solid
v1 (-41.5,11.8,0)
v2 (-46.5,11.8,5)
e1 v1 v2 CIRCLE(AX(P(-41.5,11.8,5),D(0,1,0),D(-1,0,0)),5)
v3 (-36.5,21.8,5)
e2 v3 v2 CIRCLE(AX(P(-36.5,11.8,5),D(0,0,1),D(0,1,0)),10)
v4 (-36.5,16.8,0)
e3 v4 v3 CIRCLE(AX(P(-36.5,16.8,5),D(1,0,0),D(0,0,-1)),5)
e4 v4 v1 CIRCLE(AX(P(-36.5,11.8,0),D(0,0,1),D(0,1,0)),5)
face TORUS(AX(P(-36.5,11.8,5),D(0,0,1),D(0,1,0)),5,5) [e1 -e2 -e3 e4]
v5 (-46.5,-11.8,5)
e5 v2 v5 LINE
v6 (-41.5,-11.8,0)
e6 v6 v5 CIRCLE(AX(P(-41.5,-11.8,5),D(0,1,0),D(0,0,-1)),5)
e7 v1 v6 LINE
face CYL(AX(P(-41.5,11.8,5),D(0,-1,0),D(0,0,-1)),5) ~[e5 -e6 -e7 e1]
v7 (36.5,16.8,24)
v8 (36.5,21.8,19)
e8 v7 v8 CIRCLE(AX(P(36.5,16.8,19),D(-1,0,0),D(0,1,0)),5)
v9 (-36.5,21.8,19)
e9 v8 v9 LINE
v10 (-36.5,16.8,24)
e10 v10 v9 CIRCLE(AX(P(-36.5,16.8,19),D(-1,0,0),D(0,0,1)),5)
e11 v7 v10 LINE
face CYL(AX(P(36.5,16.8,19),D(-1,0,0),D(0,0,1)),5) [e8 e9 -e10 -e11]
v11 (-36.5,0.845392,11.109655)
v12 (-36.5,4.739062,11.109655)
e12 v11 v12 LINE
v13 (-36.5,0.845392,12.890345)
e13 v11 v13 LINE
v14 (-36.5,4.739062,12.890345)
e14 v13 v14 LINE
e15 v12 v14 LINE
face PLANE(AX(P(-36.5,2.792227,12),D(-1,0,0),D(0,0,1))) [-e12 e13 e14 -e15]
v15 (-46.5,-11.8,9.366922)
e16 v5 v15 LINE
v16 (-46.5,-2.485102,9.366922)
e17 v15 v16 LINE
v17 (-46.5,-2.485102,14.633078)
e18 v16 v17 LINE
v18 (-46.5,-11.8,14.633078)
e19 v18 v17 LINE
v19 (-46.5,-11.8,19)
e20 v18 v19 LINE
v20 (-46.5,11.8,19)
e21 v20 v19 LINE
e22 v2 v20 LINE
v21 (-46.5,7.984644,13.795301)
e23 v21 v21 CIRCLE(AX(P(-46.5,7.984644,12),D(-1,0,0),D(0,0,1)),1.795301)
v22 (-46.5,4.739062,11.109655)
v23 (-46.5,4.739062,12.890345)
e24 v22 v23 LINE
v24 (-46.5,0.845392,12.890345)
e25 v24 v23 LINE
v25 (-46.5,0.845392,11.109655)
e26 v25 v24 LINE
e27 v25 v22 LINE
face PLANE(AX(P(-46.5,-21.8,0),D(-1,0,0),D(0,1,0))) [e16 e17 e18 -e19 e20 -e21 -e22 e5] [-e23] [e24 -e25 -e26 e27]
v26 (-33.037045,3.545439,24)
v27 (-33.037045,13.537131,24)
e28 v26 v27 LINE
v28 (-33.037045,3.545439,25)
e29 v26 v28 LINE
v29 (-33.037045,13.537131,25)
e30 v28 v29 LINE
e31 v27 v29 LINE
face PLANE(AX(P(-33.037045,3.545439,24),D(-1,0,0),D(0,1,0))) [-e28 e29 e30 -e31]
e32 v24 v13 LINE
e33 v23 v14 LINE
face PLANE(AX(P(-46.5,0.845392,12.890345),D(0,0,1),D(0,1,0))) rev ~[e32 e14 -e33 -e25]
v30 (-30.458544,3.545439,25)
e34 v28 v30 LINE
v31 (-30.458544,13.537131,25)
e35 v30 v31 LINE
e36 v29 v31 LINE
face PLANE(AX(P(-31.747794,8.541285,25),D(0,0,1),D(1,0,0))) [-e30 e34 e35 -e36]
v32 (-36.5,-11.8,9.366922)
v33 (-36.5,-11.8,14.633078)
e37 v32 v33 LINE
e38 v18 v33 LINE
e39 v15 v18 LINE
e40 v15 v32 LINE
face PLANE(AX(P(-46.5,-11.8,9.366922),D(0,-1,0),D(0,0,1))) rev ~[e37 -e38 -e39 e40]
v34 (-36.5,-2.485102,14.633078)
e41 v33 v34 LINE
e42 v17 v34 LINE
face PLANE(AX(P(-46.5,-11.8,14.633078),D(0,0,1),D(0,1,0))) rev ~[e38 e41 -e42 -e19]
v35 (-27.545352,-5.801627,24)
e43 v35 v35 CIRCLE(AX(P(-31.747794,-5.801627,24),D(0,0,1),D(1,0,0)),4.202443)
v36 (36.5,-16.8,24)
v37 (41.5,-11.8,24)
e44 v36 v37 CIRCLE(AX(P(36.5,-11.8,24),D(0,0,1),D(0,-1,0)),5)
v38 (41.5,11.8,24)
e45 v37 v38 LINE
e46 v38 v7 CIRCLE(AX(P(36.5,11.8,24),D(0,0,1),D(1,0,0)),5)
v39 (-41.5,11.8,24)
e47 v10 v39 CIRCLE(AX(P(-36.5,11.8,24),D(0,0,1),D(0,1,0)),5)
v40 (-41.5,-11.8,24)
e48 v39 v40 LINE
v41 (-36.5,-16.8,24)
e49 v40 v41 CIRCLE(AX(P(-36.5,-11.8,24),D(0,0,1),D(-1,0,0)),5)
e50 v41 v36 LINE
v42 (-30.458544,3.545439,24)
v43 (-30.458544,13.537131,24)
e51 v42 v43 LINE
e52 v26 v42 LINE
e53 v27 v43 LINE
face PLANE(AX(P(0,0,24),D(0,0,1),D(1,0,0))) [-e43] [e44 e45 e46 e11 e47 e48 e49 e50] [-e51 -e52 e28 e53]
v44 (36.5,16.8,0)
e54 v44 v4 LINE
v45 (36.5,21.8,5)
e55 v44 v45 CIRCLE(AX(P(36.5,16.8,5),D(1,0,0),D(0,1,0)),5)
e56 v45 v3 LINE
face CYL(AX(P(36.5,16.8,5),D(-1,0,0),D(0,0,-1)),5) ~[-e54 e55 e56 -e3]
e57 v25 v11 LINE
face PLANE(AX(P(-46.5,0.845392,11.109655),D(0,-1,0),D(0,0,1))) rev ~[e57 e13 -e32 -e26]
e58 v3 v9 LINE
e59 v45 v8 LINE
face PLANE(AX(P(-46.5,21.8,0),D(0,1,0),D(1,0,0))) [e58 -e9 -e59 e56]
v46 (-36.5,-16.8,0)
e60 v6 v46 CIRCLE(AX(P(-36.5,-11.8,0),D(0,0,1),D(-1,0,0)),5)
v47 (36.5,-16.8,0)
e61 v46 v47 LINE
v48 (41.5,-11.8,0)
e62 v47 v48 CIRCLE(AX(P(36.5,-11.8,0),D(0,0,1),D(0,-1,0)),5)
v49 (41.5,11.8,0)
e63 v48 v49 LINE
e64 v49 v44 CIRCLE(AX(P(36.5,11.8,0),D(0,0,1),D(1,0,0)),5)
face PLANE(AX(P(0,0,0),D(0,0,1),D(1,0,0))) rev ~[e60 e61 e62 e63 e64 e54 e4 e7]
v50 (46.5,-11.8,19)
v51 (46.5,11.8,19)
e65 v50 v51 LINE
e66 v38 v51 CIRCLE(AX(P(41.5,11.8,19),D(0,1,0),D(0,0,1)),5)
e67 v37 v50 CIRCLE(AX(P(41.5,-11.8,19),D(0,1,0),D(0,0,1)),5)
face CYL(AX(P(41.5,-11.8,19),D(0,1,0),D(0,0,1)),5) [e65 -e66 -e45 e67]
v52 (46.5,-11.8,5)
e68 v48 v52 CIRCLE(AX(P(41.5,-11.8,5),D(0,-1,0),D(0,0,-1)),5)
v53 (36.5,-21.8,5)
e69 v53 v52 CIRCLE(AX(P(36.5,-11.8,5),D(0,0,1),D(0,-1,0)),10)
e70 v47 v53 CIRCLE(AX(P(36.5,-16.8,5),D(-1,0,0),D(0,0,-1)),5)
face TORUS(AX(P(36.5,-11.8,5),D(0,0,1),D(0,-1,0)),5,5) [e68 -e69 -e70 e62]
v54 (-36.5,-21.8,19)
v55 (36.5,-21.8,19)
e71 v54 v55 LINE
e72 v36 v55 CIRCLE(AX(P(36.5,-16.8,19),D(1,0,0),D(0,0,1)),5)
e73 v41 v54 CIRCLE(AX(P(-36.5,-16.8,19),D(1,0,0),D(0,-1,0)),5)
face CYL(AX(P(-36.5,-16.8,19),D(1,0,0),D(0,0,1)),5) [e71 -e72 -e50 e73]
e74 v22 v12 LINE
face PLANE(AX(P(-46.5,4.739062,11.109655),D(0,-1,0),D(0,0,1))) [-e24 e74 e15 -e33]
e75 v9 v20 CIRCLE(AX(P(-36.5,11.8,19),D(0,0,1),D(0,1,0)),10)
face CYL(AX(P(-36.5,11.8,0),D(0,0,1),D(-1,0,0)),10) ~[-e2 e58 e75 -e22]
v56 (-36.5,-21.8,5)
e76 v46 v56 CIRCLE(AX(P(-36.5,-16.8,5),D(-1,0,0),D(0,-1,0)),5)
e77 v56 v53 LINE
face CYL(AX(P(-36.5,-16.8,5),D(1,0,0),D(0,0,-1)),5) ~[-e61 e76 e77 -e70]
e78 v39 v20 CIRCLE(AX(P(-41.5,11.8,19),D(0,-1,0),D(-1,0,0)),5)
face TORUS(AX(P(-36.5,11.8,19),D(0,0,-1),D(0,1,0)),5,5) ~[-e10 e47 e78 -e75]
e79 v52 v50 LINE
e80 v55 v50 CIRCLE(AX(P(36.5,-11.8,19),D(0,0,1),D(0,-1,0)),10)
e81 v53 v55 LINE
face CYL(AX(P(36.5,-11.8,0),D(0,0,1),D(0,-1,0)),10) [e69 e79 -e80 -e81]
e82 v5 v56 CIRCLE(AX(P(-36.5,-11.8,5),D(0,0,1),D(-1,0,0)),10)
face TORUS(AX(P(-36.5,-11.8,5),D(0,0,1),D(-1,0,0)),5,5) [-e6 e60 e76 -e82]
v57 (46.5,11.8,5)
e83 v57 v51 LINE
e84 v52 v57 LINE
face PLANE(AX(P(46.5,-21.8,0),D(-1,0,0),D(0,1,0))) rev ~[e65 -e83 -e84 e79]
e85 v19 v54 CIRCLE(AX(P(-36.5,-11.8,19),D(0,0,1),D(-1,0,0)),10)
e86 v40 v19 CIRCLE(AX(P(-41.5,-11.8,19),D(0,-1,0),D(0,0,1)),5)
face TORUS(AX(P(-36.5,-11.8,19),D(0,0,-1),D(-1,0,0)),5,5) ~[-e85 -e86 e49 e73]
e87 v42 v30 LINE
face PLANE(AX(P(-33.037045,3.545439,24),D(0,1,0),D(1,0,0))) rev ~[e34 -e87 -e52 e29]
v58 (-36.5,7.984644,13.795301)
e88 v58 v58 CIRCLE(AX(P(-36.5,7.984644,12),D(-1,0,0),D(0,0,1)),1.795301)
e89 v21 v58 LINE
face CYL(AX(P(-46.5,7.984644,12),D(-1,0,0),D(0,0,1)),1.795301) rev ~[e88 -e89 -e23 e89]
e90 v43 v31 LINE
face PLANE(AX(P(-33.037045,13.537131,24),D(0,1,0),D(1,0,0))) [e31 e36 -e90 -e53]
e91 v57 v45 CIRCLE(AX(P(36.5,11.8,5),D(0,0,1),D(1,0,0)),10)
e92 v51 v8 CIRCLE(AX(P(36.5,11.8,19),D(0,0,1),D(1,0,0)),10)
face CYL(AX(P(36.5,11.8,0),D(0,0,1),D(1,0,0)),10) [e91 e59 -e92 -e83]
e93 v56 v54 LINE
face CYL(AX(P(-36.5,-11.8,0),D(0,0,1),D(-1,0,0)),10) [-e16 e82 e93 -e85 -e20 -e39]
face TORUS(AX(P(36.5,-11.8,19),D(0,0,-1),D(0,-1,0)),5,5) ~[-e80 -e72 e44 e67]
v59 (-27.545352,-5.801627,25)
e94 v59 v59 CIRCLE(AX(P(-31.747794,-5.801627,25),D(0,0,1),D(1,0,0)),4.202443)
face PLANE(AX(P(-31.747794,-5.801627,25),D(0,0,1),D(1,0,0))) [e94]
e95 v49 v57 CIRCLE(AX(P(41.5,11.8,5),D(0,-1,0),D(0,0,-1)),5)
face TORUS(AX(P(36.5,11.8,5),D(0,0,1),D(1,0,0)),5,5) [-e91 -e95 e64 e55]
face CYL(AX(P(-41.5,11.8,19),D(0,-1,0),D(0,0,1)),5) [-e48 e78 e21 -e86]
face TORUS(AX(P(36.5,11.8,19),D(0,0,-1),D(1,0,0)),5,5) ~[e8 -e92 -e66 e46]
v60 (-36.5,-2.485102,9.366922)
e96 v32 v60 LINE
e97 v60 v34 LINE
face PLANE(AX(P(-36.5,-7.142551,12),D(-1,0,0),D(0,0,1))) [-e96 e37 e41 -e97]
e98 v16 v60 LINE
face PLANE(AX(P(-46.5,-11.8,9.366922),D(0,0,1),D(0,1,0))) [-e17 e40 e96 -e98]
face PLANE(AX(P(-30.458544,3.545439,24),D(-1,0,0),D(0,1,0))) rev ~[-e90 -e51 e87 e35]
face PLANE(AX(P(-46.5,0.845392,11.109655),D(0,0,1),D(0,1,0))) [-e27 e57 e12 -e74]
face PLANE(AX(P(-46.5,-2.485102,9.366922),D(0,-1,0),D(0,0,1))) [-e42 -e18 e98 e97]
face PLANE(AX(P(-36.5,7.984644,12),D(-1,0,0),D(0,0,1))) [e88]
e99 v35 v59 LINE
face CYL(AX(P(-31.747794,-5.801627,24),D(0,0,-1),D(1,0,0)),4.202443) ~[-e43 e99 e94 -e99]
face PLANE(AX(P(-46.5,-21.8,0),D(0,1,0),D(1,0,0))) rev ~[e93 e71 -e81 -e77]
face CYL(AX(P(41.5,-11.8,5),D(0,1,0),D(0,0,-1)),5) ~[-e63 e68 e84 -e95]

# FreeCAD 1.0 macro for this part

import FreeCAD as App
import Part
import Sketcher

V = App.Vector


def edges_at(feature, points):
    """Names of the edges that pass closest to the given points."""
    edges = feature.Shape.Edges
    near = lambda p: min(range(len(edges)), key=lambda i: edges[i].distToShape(Part.Vertex(*p))[0])
    return sorted({f"Edge{near(p) + 1}" for p in points})

doc = App.newDocument("Part")
params = doc.addObject("Spreadsheet::Sheet", "Params")
for row, (alias, value) in enumerate([
    ("sketch1_width", "93 mm"),
    ("sketch1_height", "43.6 mm"),
    ("pad1_length", "24 mm"),
    ("fillet_radius", "10 mm"),
    ("fillet2_radius", "5 mm"),
    ("pocket1_length", "10 mm"),
    ("pad2_length", "1 mm"),
], start=1):
    params.set(f"A{row}", alias)
    params.set(f"B{row}", "=" + value)
    params.setAlias(f"B{row}", alias)

body = doc.addObject("PartDesign::Body", "Body")

sketch1 = body.newObject("Sketcher::SketchObject", "Sketch")
sketch1.AttachmentSupport = (doc.getObject("XY_Plane"), [""])
sketch1.MapMode = "FlatFace"
sketch1.addGeometry(Part.LineSegment(V(-46, 22, 0), V(-46, -22, 0)), False)
sketch1.addGeometry(Part.LineSegment(V(-46, -22, 0), V(46, -22, 0)), False)
sketch1.addGeometry(Part.LineSegment(V(46, -22, 0), V(46, 22, 0)), False)
sketch1.addGeometry(Part.LineSegment(V(46, 22, 0), V(-46, 22, 0)), False)
sketch1.addConstraint(Sketcher.Constraint("Coincident", 0, 2, 1, 1))
sketch1.addConstraint(Sketcher.Constraint("Coincident", 1, 2, 2, 1))
sketch1.addConstraint(Sketcher.Constraint("Coincident", 2, 2, 3, 1))
sketch1.addConstraint(Sketcher.Constraint("Coincident", 3, 2, 0, 1))
sketch1.addConstraint(Sketcher.Constraint("Vertical", 0))
sketch1.addConstraint(Sketcher.Constraint("Horizontal", 1))
sketch1.addConstraint(Sketcher.Constraint("Vertical", 2))
sketch1.addConstraint(Sketcher.Constraint("Horizontal", 3))
sketch1.addConstraint(Sketcher.Constraint("Symmetric", 0, 2, 2, 2, -1, 1))
sketch1.addConstraint(Sketcher.Constraint("DistanceX", 1, 1, 1, 2, 93.0))
sketch1.addConstraint(Sketcher.Constraint("DistanceY", 0, 2, 0, 1, 43.6))
sketch1.setExpression("Constraints[9]", "Params.sketch1_width")
sketch1.setExpression("Constraints[10]", "Params.sketch1_height")
pad1 = body.newObject("PartDesign::Pad", "Pad")
pad1.Profile = sketch1
pad1.setExpression("Length", "Params.pad1_length")
doc.recompute()

fillet = body.newObject("PartDesign::Fillet", "Fillet")
fillet.Base = (pad1, edges_at(pad1, [
    (46.5, -21.8, 12),
    (-46.5, -21.8, 12),
    (-46.5, 21.8, 12),
    (46.5, 21.8, 12),
]))
fillet.setExpression("Radius", "Params.fillet_radius")
doc.recompute()

fillet2 = body.newObject("PartDesign::Fillet", "Fillet001")
fillet2.Base = (fillet, edges_at(fillet, [
    (46.5, 0, 0),
    (46.5, 0, 24),
    (0, -21.8, 0),
    (-46.5, 0, 0),
    (0, 21.8, 0),
    (-43.571, 18.871, 0),
    (-43.571, -18.871, 0),
    (43.571, 18.871, 0),
    (43.571, -18.871, 0),
    (0, -21.8, 24),
    (0, 21.8, 24),
    (-46.5, 0, 24),
    (-43.571, 18.871, 24),
    (-43.571, -18.871, 24),
    (43.571, 18.871, 24),
    (43.571, -18.871, 24),
]))
fillet2.setExpression("Radius", "Params.fillet2_radius")

sketch2 = body.newObject("Sketcher::SketchObject", "Sketch001")
sketch2.AttachmentSupport = (doc.getObject("YZ_Plane"), [""])
sketch2.MapMode = "FlatFace"
sketch2.AttachmentOffset = App.Placement(V(0, 0, -46.5), App.Rotation())
sketch2.addGeometry(Part.Circle(V(8, 12, 0), V(0, 0, 1), 1.8), False)
sketch2.addGeometry(Part.LineSegment(V(-2.5, 9.4, 0), V(-11.8, 9.4, 0)), False)
sketch2.addGeometry(Part.LineSegment(V(-11.8, 9.4, 0), V(-11.8, 14.6, 0)), False)
sketch2.addGeometry(Part.LineSegment(V(-11.8, 14.6, 0), V(-2.5, 14.6, 0)), False)
sketch2.addGeometry(Part.LineSegment(V(-2.5, 14.6, 0), V(-2.5, 9.4, 0)), False)
sketch2.addGeometry(Part.LineSegment(V(4.7, 11.1, 0), V(0.8, 11.1, 0)), False)
sketch2.addGeometry(Part.LineSegment(V(0.8, 11.1, 0), V(0.8, 12.9, 0)), False)
sketch2.addGeometry(Part.LineSegment(V(0.8, 12.9, 0), V(4.7, 12.9, 0)), False)
sketch2.addGeometry(Part.LineSegment(V(4.7, 12.9, 0), V(4.7, 11.1, 0)), False)
sketch2.addConstraint(Sketcher.Constraint("Coincident", 1, 2, 2, 1))
sketch2.addConstraint(Sketcher.Constraint("Coincident", 2, 2, 3, 1))
sketch2.addConstraint(Sketcher.Constraint("Coincident", 3, 2, 4, 1))
sketch2.addConstraint(Sketcher.Constraint("Coincident", 4, 2, 1, 1))
sketch2.addConstraint(Sketcher.Constraint("Coincident", 5, 2, 6, 1))
sketch2.addConstraint(Sketcher.Constraint("Coincident", 6, 2, 7, 1))
sketch2.addConstraint(Sketcher.Constraint("Coincident", 7, 2, 8, 1))
sketch2.addConstraint(Sketcher.Constraint("Coincident", 8, 2, 5, 1))
sketch2.addConstraint(Sketcher.Constraint("Horizontal", 1))
sketch2.addConstraint(Sketcher.Constraint("Vertical", 2))
sketch2.addConstraint(Sketcher.Constraint("Horizontal", 3))
sketch2.addConstraint(Sketcher.Constraint("Vertical", 4))
sketch2.addConstraint(Sketcher.Constraint("Horizontal", 5))
sketch2.addConstraint(Sketcher.Constraint("Vertical", 6))
sketch2.addConstraint(Sketcher.Constraint("Horizontal", 7))
sketch2.addConstraint(Sketcher.Constraint("Vertical", 8))
sketch2.addConstraint(Sketcher.Constraint("DistanceY", -1, 1, 0, 3, 12.0))
sketch2.addConstraint(Sketcher.Constraint("DistanceX", 1, 2, -1, 1, 11.8))
sketch2.addConstraint(Sketcher.Constraint("Diameter", 0, 3.590603))
sketch2.addConstraint(Sketcher.Constraint("DistanceX", 1, 2, 1, 1, 9.314898))
sketch2.addConstraint(Sketcher.Constraint("DistanceX", 5, 2, 5, 1, 3.89367))
sketch2.addConstraint(Sketcher.Constraint("DistanceY", 6, 1, 6, 2, 1.78069))
sketch2.addConstraint(Sketcher.Constraint("DistanceY", 2, 1, 2, 2, 5.266157))
sketch2.addConstraint(Sketcher.Constraint("DistanceY", -1, 1, 1, 2, 9.366922))
sketch2.addConstraint(Sketcher.Constraint("DistanceX", -1, 1, 7, 2, 4.739062))
sketch2.addConstraint(Sketcher.Constraint("DistanceX", 5, 2, 0, 3, 7.139251))
sketch2.addConstraint(Sketcher.Constraint("DistanceY", -1, 1, 5, 2, 11.109655))
pocket1 = body.newObject("PartDesign::Pocket", "Pocket")
pocket1.Profile = sketch2
pocket1.setExpression("Length", "Params.pocket1_length")
pocket1.Reversed = True

sketch3 = body.newObject("Sketcher::SketchObject", "Sketch002")
sketch3.AttachmentSupport = (doc.getObject("XY_Plane"), [""])
sketch3.MapMode = "FlatFace"
sketch3.AttachmentOffset = App.Placement(V(0, 0, 24), App.Rotation())
sketch3.addGeometry(Part.Circle(V(-31.7, -5.8, 0), V(0, 0, 1), 4.2), False)
sketch3.addGeometry(Part.LineSegment(V(-33, 13.5, 0), V(-33, 3.5, 0)), False)
sketch3.addGeometry(Part.LineSegment(V(-33, 3.5, 0), V(-30.5, 3.5, 0)), False)
sketch3.addGeometry(Part.LineSegment(V(-30.5, 3.5, 0), V(-30.5, 13.5, 0)), False)
sketch3.addGeometry(Part.LineSegment(V(-30.5, 13.5, 0), V(-33, 13.5, 0)), False)
sketch3.addConstraint(Sketcher.Constraint("Coincident", 1, 2, 2, 1))
sketch3.addConstraint(Sketcher.Constraint("Coincident", 2, 2, 3, 1))
sketch3.addConstraint(Sketcher.Constraint("Coincident", 3, 2, 4, 1))
sketch3.addConstraint(Sketcher.Constraint("Coincident", 4, 2, 1, 1))
sketch3.addConstraint(Sketcher.Constraint("Vertical", 1))
sketch3.addConstraint(Sketcher.Constraint("Horizontal", 2))
sketch3.addConstraint(Sketcher.Constraint("Vertical", 3))
sketch3.addConstraint(Sketcher.Constraint("Horizontal", 4))
sketch3.addConstraint(Sketcher.Constraint("Diameter", 0, 8.404885))
sketch3.addConstraint(Sketcher.Constraint("DistanceX", 2, 1, 2, 2, 2.578501))
sketch3.addConstraint(Sketcher.Constraint("DistanceY", 1, 2, 1, 1, 9.991692))
sketch3.addConstraint(Sketcher.Constraint("DistanceY", -1, 1, 1, 2, 3.545439))
sketch3.addConstraint(Sketcher.Constraint("DistanceX", 1, 2, 0, 3, 1.289251))
sketch3.addConstraint(Sketcher.Constraint("DistanceX", 0, 3, -1, 1, 31.747794))
sketch3.addConstraint(Sketcher.Constraint("DistanceY", 0, 3, -1, 1, 5.801627))
pad2 = body.newObject("PartDesign::Pad", "Pad001")
pad2.Profile = sketch3
pad2.setExpression("Length", "Params.pad2_length")

doc.recompute()
